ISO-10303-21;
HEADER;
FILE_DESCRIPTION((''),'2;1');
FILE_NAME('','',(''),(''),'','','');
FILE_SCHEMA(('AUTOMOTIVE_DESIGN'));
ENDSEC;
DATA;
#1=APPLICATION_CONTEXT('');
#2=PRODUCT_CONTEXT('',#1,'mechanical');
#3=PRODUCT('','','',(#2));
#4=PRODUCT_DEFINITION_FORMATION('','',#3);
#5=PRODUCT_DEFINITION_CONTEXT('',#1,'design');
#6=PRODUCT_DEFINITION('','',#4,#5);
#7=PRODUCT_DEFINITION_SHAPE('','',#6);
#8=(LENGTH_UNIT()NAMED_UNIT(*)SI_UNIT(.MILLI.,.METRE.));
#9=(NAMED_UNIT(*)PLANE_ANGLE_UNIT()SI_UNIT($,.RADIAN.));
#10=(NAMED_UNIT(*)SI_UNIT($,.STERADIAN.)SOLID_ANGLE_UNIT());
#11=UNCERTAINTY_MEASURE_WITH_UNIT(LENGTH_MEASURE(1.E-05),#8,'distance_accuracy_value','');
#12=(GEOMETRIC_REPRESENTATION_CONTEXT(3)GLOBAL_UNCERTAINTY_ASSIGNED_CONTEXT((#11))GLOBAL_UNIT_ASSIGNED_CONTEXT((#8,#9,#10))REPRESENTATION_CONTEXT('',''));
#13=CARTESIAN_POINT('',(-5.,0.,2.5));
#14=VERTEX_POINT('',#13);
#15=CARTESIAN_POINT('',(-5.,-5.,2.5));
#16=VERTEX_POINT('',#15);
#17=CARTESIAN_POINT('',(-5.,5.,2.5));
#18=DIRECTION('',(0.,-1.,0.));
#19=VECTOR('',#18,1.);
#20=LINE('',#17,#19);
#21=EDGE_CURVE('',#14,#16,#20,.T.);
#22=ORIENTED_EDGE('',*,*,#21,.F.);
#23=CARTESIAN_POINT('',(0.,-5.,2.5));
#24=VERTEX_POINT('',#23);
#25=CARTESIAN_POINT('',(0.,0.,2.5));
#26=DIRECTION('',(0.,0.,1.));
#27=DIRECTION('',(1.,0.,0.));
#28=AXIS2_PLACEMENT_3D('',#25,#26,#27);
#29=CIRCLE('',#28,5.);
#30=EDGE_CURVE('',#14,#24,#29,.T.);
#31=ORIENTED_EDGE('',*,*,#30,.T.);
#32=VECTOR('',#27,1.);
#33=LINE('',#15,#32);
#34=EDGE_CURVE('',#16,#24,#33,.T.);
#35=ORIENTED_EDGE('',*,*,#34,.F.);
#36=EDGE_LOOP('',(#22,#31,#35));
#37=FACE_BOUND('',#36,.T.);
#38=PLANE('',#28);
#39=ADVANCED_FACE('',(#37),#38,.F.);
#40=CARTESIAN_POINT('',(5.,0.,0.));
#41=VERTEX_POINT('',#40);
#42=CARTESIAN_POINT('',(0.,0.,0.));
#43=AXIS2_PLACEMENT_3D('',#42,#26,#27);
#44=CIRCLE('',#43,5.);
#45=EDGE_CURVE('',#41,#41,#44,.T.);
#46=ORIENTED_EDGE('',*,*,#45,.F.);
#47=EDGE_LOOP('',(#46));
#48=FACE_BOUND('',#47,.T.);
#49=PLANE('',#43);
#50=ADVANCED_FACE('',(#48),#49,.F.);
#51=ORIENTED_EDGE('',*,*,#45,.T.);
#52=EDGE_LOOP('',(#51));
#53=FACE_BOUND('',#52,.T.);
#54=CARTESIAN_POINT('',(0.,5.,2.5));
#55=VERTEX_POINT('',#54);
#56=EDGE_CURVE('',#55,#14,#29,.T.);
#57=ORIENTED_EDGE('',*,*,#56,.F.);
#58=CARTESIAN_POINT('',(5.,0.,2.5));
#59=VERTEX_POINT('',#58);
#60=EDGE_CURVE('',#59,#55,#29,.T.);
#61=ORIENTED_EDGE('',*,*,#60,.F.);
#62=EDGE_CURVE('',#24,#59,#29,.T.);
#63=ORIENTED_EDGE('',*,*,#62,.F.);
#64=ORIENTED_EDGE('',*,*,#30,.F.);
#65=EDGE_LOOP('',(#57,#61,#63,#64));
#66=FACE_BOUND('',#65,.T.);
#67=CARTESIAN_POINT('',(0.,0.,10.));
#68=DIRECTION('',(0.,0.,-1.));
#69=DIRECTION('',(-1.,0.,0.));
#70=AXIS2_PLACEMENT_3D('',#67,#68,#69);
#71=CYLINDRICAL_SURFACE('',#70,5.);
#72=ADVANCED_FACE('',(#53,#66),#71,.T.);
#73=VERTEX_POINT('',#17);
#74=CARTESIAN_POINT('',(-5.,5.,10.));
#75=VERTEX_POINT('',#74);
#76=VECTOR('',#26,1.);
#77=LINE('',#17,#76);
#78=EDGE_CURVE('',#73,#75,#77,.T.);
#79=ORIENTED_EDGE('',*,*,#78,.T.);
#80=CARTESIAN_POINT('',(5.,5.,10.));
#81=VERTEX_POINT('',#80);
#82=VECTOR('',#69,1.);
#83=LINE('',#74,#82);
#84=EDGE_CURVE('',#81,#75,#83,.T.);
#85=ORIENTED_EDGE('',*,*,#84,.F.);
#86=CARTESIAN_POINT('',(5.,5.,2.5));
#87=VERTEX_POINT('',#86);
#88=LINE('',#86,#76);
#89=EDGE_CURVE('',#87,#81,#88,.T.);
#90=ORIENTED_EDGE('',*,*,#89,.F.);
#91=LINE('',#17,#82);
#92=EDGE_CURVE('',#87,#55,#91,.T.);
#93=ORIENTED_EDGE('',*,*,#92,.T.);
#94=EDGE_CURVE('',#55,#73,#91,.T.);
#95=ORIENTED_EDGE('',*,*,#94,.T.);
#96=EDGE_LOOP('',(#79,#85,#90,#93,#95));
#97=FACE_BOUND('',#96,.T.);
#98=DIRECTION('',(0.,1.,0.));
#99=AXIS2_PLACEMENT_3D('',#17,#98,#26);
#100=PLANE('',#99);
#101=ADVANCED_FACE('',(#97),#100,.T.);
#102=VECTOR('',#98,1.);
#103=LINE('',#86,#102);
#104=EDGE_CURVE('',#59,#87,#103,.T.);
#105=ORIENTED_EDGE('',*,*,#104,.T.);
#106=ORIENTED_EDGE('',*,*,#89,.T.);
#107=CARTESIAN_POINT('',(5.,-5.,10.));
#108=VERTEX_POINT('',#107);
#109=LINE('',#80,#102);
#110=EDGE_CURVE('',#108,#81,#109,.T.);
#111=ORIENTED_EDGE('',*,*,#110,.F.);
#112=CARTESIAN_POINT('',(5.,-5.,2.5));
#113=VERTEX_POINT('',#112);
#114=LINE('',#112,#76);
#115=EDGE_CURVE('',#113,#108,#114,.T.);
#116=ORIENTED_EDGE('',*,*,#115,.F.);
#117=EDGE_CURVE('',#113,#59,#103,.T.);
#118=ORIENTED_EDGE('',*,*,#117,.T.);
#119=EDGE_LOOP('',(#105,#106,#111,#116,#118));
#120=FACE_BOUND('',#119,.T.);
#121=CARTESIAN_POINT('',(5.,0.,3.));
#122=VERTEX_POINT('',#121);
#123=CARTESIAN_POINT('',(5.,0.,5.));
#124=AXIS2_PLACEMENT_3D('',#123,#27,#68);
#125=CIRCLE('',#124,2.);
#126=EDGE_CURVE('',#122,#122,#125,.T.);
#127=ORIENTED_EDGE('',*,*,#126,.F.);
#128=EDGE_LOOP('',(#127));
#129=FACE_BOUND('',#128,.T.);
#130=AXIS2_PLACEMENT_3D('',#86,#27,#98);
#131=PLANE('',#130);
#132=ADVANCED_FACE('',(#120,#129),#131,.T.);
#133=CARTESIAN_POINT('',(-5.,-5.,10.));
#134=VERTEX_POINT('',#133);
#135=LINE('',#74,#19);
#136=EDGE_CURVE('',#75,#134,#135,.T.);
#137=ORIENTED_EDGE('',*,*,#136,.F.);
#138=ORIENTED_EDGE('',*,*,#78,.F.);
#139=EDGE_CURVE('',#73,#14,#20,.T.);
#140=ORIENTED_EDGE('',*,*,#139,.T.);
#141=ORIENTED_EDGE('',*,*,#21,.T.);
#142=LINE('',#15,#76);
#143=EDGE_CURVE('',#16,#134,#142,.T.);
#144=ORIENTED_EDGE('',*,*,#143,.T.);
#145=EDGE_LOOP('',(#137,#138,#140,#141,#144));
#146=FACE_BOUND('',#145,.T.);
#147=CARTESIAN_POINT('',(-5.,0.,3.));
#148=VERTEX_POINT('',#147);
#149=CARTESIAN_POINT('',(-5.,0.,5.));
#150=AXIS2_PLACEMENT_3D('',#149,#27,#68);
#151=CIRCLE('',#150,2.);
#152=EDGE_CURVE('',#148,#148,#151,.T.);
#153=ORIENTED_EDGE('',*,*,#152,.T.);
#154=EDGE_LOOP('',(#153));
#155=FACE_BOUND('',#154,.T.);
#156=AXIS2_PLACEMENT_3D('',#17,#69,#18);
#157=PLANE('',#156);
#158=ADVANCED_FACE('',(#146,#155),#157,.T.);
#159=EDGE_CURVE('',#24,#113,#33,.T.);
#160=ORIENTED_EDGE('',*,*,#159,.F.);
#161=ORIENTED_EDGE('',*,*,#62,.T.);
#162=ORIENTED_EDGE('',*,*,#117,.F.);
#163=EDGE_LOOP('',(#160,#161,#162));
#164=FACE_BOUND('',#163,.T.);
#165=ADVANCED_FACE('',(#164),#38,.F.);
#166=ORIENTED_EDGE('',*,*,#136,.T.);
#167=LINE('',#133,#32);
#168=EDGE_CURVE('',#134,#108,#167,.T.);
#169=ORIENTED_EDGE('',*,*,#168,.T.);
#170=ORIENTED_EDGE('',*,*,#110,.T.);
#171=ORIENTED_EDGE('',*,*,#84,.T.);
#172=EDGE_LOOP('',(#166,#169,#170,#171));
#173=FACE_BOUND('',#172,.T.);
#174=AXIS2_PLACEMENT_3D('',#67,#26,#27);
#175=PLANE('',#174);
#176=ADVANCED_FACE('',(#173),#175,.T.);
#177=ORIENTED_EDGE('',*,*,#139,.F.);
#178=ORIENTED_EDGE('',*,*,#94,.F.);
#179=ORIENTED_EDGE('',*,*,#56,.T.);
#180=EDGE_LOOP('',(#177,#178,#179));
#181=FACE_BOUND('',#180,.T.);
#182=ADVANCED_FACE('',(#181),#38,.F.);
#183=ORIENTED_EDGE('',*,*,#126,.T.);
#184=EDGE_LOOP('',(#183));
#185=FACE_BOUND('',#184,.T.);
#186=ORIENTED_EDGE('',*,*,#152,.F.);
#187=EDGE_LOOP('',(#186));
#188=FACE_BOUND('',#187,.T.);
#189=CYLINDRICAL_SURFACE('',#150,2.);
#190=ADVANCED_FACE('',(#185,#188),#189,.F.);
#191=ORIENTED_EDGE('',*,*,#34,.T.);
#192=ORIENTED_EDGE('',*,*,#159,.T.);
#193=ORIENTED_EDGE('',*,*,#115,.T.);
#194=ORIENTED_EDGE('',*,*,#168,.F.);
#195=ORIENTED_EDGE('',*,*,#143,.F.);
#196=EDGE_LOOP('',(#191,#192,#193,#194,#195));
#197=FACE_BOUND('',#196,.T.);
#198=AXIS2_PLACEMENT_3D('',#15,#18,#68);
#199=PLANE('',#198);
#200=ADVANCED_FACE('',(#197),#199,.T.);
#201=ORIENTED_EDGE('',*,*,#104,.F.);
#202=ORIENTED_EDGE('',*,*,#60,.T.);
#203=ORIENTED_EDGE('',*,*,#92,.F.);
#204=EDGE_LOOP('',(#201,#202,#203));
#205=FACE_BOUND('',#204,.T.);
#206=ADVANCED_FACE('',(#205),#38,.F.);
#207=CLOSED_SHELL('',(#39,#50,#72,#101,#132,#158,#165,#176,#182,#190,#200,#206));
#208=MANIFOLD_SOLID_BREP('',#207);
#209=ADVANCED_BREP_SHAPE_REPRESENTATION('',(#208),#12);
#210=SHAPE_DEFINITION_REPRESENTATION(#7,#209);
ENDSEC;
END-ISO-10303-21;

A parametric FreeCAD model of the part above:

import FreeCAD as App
import Part
import Sketcher

V = App.Vector
Q = App.Units.Quantity

doc = App.newDocument("Part")
body = doc.addObject("PartDesign::Body", "Body")

# Sketch on XY plane
sketch1 = doc.addObject("Sketcher::SketchObject", "Sketch")
body.addObject(sketch1)
sketch1.AttachmentSupport = (doc.XY_Plane, [""])
sketch1.MapMode = "FlatFace"
sketch1.addGeometry(Part.Circle(V(0, 0, 0), V(0, 0, 1), 5), False)
sketch1.addConstraint([
    Sketcher.Constraint("Coincident", 0, 3, -1, 1),
    Sketcher.Constraint("Diameter", 0, Q("10 mm")),
])
pad1 = doc.addObject("PartDesign::Pad", "Pad")
body.addObject(pad1)
pad1.Profile = sketch1
pad1.Length = 10

# Sketch on XY plane
sketch2 = doc.addObject("Sketcher::SketchObject", "Sketch001")
body.addObject(sketch2)
sketch2.AttachmentSupport = (doc.XY_Plane, [""])
sketch2.MapMode = "FlatFace"
sketch2.AttachmentOffset = App.Placement(V(0, 0, 10), App.Rotation())
sketch2.addGeometry([
    Part.LineSegment(V(-5, 5, 0), V(-5, -5, 0)),
    Part.LineSegment(V(-5, -5, 0), V(5, -5, 0)),
    Part.LineSegment(V(5, -5, 0), V(5, 5, 0)),
    Part.LineSegment(V(5, 5, 0), V(-5, 5, 0)),
], False)
sketch2.addConstraint([
    Sketcher.Constraint("Coincident", 0, 2, 1, 1),
    Sketcher.Constraint("Coincident", 1, 2, 2, 1),
    Sketcher.Constraint("Coincident", 2, 2, 3, 1),
    Sketcher.Constraint("Coincident", 3, 2, 0, 1),
    Sketcher.Constraint("Vertical", 0),
    Sketcher.Constraint("Horizontal", 1),
    Sketcher.Constraint("Vertical", 2),
    Sketcher.Constraint("Horizontal", 3),
    Sketcher.Constraint("Symmetric", 0, 2, 2, 2, -1, 1),
    Sketcher.Constraint("Equal", 3, 0),
    Sketcher.Constraint("DistanceX", 1, 1, 1, 2, Q("10 mm")),
])
pad2 = doc.addObject("PartDesign::Pad", "Pad001")
body.addObject(pad2)
pad2.Profile = sketch2
pad2.Length = 7.5
pad2.Reversed = True

# Sketch on YZ plane
sketch3 = doc.addObject("Sketcher::SketchObject", "Sketch002")
body.addObject(sketch3)
sketch3.AttachmentSupport = (doc.YZ_Plane, [""])
sketch3.MapMode = "FlatFace"
sketch3.AttachmentOffset = App.Placement(V(0, 0, 5), App.Rotation())
sketch3.addGeometry(Part.Circle(V(0, 5, 0), V(0, 0, 1), 2), False)
sketch3.addConstraint([
    Sketcher.Constraint("PointOnObject", 0, 3, -2),
    Sketcher.Constraint("Diameter", 0, Q("4 mm")),
    Sketcher.Constraint("DistanceY", -1, 1, 0, 3, Q("5 mm")),
])
pocket1 = doc.addObject("PartDesign::Pocket", "Pocket")
body.addObject(pocket1)
pocket1.Profile = sketch3
pocket1.Type = "ThroughAll"

doc.recompute()
